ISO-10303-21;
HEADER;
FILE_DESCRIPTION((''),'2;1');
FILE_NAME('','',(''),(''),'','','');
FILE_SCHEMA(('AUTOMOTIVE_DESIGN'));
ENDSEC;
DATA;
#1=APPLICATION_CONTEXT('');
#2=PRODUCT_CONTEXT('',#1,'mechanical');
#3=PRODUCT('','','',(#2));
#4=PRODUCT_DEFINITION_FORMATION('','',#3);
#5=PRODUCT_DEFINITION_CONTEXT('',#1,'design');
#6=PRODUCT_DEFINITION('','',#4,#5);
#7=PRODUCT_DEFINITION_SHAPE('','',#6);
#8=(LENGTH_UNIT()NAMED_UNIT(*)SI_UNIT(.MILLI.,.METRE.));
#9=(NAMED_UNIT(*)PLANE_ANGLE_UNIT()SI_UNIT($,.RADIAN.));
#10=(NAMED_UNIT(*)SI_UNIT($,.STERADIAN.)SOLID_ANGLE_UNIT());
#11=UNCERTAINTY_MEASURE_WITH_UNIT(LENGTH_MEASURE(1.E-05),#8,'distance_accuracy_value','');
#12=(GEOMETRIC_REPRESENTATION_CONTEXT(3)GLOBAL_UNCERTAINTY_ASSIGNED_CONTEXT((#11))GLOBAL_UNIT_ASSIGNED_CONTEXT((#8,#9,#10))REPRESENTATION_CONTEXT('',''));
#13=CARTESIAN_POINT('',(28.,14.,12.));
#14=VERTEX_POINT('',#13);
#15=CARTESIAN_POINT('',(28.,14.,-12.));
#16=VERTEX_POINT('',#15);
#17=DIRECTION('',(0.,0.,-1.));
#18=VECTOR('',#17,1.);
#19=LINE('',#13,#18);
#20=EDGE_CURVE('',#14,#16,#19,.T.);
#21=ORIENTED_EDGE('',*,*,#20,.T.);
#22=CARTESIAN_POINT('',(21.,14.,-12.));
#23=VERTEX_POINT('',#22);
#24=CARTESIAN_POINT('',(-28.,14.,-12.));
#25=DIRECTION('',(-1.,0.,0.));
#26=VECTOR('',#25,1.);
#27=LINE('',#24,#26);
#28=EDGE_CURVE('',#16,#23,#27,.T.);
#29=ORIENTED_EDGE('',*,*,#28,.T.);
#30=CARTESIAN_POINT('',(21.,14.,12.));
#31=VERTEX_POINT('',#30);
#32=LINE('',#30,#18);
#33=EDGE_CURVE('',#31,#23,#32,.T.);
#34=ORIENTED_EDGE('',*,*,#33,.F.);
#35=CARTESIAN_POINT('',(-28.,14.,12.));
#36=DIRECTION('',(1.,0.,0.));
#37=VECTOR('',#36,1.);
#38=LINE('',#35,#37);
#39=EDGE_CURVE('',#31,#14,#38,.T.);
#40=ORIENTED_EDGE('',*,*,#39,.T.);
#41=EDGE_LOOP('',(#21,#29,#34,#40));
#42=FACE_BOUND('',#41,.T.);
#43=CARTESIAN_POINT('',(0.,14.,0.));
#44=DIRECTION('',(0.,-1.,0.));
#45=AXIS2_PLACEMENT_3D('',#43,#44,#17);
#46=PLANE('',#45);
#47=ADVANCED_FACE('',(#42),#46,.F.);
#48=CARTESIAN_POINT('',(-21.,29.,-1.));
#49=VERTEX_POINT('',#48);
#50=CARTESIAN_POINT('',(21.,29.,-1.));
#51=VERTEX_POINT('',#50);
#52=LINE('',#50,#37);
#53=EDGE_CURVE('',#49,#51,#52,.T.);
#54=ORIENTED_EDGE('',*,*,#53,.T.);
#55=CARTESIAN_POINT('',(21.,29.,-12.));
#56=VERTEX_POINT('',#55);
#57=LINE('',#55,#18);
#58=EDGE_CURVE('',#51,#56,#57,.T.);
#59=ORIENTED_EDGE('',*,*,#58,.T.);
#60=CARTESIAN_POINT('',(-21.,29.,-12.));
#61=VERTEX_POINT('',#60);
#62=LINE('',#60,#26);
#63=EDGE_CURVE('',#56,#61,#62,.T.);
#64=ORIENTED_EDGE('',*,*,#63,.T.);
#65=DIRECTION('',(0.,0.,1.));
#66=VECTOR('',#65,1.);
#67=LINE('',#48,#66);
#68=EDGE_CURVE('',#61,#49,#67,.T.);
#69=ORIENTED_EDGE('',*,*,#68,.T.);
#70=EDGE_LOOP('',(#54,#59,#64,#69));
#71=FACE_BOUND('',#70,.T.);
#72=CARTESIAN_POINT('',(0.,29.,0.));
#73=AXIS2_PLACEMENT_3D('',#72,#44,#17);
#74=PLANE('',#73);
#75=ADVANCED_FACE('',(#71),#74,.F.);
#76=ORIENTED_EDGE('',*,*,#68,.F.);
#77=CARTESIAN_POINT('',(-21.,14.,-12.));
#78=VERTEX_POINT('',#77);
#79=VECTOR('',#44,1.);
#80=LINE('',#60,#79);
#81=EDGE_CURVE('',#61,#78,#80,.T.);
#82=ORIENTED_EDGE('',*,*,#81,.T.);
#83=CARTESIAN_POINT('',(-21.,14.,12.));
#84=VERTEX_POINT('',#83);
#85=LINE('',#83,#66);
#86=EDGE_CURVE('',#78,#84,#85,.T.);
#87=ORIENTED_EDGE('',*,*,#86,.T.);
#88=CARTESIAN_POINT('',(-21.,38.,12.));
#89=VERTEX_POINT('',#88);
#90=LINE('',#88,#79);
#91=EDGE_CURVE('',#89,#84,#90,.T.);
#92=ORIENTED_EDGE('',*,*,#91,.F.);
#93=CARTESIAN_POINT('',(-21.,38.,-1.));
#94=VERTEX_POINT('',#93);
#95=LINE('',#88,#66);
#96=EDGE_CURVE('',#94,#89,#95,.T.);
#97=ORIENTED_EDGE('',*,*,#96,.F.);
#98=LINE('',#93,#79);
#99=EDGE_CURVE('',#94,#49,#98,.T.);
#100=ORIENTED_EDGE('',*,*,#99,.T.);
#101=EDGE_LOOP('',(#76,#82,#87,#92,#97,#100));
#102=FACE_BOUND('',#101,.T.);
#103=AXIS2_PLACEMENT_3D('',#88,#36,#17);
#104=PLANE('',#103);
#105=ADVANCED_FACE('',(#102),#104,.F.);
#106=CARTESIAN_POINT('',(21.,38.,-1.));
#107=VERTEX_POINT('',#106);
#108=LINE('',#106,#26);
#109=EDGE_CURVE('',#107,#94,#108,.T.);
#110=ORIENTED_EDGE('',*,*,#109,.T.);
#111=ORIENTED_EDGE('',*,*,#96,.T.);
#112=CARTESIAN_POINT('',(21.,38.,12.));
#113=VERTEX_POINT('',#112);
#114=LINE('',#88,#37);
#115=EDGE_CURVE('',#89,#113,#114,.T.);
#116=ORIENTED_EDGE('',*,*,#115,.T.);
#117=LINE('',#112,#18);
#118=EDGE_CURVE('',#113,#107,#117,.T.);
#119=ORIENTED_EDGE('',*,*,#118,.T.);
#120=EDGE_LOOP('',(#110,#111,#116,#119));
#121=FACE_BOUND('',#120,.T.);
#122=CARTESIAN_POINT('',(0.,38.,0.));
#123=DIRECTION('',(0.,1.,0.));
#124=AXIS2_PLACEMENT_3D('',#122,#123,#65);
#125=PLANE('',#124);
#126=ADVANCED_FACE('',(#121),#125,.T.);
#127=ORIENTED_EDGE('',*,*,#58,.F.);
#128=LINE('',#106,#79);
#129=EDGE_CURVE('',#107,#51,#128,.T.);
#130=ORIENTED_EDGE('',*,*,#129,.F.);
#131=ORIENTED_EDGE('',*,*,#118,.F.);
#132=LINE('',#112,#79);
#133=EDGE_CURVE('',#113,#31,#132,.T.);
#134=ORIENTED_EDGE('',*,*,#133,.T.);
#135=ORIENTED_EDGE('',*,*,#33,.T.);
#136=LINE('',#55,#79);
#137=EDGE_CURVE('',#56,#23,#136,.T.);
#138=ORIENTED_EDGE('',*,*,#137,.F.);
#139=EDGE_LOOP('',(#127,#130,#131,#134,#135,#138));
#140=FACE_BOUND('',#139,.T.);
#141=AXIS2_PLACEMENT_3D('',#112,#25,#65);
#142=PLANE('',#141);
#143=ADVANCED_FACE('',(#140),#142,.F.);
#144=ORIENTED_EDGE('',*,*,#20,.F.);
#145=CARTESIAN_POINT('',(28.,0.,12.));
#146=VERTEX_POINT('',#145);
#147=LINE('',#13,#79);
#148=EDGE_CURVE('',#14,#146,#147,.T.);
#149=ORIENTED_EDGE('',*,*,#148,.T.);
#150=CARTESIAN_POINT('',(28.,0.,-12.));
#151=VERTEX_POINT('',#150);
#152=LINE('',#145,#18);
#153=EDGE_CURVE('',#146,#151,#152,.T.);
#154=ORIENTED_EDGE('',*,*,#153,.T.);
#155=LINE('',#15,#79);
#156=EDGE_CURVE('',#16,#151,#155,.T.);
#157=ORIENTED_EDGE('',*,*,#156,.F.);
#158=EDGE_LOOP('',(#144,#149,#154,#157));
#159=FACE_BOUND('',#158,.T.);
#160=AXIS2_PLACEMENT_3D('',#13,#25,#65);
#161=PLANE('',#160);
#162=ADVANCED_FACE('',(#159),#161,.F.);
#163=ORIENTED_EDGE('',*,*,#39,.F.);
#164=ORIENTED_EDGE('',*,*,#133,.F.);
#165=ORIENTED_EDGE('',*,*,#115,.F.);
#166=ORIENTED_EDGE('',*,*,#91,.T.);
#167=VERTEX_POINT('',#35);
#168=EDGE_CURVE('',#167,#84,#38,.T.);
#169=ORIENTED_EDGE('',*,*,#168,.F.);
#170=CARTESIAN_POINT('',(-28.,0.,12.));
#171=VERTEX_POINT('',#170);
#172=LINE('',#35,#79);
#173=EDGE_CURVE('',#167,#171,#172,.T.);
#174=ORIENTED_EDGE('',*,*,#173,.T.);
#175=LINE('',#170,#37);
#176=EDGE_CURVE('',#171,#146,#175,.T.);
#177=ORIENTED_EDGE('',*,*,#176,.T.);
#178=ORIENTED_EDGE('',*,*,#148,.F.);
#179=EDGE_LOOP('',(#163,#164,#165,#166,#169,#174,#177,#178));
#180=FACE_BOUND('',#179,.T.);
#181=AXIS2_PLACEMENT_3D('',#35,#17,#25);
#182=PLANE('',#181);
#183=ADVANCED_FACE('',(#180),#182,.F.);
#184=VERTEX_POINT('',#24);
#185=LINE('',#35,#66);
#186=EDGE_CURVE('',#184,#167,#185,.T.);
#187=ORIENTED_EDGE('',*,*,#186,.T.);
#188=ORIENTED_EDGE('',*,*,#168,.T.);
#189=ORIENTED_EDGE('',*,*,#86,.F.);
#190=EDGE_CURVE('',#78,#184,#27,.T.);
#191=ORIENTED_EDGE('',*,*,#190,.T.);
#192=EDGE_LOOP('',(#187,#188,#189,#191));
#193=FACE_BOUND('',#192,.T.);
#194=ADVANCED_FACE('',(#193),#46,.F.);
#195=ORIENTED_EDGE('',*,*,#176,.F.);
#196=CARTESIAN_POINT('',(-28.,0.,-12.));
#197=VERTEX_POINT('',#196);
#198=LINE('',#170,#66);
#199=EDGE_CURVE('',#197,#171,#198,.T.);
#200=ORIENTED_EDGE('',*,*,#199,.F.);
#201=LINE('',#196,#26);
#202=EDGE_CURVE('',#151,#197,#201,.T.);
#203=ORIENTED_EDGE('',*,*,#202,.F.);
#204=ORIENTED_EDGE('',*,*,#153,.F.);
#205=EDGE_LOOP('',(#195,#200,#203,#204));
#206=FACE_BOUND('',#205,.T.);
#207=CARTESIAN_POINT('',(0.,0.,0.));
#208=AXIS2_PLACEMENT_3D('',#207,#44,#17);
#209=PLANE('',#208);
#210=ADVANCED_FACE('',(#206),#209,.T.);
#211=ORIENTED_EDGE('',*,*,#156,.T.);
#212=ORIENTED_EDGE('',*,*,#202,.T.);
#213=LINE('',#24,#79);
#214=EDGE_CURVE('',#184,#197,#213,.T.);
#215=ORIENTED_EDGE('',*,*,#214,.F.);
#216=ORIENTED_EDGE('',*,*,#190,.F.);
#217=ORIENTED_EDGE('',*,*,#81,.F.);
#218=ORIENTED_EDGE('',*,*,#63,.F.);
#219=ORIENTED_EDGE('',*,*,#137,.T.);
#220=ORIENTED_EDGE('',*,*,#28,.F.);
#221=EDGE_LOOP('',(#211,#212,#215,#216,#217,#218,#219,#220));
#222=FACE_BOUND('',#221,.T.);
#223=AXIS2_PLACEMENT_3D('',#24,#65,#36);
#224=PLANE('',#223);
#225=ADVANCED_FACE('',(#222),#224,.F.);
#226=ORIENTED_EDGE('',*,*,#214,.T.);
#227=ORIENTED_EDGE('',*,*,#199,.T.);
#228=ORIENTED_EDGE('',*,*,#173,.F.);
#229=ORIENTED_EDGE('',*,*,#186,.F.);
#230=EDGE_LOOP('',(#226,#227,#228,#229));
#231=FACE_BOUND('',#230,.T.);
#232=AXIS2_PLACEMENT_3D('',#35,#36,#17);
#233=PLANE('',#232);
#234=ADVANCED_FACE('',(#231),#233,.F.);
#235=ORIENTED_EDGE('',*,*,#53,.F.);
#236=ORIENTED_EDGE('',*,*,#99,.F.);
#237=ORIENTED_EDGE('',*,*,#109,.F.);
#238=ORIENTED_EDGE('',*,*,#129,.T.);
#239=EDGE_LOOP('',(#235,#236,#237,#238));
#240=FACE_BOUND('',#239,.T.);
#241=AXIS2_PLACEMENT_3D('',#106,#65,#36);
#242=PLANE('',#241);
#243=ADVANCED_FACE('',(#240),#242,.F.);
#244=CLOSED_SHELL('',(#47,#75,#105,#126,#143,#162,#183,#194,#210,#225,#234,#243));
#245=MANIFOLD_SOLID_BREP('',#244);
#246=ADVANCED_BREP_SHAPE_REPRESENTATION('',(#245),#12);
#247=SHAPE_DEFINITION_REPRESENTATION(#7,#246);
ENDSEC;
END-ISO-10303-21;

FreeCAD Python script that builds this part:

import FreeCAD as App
import Part
import Sketcher
from FreeCAD import Vector
Q = App.Units.Quantity


def add_polygon(sketch, points):
    """Adds a closed chain of lines whose ends are joined by coincident constraints."""
    first, n = sketch.GeometryCount, len(points)
    for a, b in zip(points, points[1:] + points[:1]):
        sketch.addGeometry(Part.LineSegment(App.Vector(*a, 0), App.Vector(*b, 0)), False)
    for i in range(n):
        sketch.addConstraint(Sketcher.Constraint("Coincident", first + i, 2, first + (i + 1) % n, 1))

doc = App.newDocument("Part")
body = doc.addObject("PartDesign::Body", "Body")

sketch1 = body.newObject("Sketcher::SketchObject", "Sketch")
sketch1.AttachmentSupport = (doc.getObject("XZ_Plane"), [""])
sketch1.MapMode = "FlatFace"
add_polygon(sketch1, [(-28, -12), (-28, 12), (28, 12), (28, -12)])
sketch1.addConstraint(Sketcher.Constraint("Vertical", 0))
sketch1.addConstraint(Sketcher.Constraint("Horizontal", 1))
sketch1.addConstraint(Sketcher.Constraint("Vertical", 2))
sketch1.addConstraint(Sketcher.Constraint("Horizontal", 3))
sketch1.addConstraint(Sketcher.Constraint("Symmetric", 0, 2, 2, 2, -1, 1))
sketch1.addConstraint(Sketcher.Constraint("DistanceX", 1, 1, 1, 2, Q("56 mm")))
sketch1.addConstraint(Sketcher.Constraint("DistanceY", 0, 1, 0, 2, Q("24 mm")))
pad1 = body.newObject("PartDesign::Pad", "Pad")
pad1.Profile = sketch1
pad1.Length = 14
pad1.Reversed = True

sketch2 = body.newObject("Sketcher::SketchObject", "Sketch001")
sketch2.AttachmentSupport = (doc.getObject("XZ_Plane"), [""])
sketch2.MapMode = "FlatFace"
sketch2.AttachmentOffset = App.Placement(Vector(0, 0, -14), App.Rotation())
add_polygon(sketch2, [(-21, -1), (-21, 12), (21, 12), (21, -1)])
sketch2.addConstraint(Sketcher.Constraint("Vertical", 0))
sketch2.addConstraint(Sketcher.Constraint("Horizontal", 1))
sketch2.addConstraint(Sketcher.Constraint("Vertical", 2))
sketch2.addConstraint(Sketcher.Constraint("Horizontal", 3))
sketch2.addConstraint(Sketcher.Constraint("DistanceX", 1, 1, 1, 2, Q("42 mm")))
sketch2.addConstraint(Sketcher.Constraint("DistanceY", 0, 1, 0, 2, Q("13 mm")))
sketch2.addConstraint(Sketcher.Constraint("DistanceX", 0, 2, -1, 1, Q("21 mm")))
sketch2.addConstraint(Sketcher.Constraint("DistanceY", -1, 1, 0, 2, Q("12 mm")))
pad2 = body.newObject("PartDesign::Pad", "Pad001")
pad2.Profile = sketch2
pad2.Length = 24
pad2.Reversed = True

sketch3 = body.newObject("Sketcher::SketchObject", "Sketch002")
sketch3.AttachmentSupport = (doc.getObject("XZ_Plane"), [""])
sketch3.MapMode = "FlatFace"
sketch3.AttachmentOffset = App.Placement(Vector(0, 0, -14), App.Rotation())
add_polygon(sketch3, [(-21, -12), (-21, -1), (21, -1), (21, -12)])
sketch3.addConstraint(Sketcher.Constraint("Vertical", 0))
sketch3.addConstraint(Sketcher.Constraint("Horizontal", 1))
sketch3.addConstraint(Sketcher.Constraint("Vertical", 2))
sketch3.addConstraint(Sketcher.Constraint("Horizontal", 3))
sketch3.addConstraint(Sketcher.Constraint("DistanceX", 1, 1, 1, 2, Q("42 mm")))
sketch3.addConstraint(Sketcher.Constraint("DistanceY", 0, 1, 0, 2, Q("11 mm")))
sketch3.addConstraint(Sketcher.Constraint("DistanceX", 0, 2, -1, 1, Q("21 mm")))
sketch3.addConstraint(Sketcher.Constraint("DistanceY", 0, 2, -1, 1, Q("1 mm")))
pad3 = body.newObject("PartDesign::Pad", "Pad002")
pad3.Profile = sketch3
pad3.Length = 15
pad3.Reversed = True

doc.recompute()
